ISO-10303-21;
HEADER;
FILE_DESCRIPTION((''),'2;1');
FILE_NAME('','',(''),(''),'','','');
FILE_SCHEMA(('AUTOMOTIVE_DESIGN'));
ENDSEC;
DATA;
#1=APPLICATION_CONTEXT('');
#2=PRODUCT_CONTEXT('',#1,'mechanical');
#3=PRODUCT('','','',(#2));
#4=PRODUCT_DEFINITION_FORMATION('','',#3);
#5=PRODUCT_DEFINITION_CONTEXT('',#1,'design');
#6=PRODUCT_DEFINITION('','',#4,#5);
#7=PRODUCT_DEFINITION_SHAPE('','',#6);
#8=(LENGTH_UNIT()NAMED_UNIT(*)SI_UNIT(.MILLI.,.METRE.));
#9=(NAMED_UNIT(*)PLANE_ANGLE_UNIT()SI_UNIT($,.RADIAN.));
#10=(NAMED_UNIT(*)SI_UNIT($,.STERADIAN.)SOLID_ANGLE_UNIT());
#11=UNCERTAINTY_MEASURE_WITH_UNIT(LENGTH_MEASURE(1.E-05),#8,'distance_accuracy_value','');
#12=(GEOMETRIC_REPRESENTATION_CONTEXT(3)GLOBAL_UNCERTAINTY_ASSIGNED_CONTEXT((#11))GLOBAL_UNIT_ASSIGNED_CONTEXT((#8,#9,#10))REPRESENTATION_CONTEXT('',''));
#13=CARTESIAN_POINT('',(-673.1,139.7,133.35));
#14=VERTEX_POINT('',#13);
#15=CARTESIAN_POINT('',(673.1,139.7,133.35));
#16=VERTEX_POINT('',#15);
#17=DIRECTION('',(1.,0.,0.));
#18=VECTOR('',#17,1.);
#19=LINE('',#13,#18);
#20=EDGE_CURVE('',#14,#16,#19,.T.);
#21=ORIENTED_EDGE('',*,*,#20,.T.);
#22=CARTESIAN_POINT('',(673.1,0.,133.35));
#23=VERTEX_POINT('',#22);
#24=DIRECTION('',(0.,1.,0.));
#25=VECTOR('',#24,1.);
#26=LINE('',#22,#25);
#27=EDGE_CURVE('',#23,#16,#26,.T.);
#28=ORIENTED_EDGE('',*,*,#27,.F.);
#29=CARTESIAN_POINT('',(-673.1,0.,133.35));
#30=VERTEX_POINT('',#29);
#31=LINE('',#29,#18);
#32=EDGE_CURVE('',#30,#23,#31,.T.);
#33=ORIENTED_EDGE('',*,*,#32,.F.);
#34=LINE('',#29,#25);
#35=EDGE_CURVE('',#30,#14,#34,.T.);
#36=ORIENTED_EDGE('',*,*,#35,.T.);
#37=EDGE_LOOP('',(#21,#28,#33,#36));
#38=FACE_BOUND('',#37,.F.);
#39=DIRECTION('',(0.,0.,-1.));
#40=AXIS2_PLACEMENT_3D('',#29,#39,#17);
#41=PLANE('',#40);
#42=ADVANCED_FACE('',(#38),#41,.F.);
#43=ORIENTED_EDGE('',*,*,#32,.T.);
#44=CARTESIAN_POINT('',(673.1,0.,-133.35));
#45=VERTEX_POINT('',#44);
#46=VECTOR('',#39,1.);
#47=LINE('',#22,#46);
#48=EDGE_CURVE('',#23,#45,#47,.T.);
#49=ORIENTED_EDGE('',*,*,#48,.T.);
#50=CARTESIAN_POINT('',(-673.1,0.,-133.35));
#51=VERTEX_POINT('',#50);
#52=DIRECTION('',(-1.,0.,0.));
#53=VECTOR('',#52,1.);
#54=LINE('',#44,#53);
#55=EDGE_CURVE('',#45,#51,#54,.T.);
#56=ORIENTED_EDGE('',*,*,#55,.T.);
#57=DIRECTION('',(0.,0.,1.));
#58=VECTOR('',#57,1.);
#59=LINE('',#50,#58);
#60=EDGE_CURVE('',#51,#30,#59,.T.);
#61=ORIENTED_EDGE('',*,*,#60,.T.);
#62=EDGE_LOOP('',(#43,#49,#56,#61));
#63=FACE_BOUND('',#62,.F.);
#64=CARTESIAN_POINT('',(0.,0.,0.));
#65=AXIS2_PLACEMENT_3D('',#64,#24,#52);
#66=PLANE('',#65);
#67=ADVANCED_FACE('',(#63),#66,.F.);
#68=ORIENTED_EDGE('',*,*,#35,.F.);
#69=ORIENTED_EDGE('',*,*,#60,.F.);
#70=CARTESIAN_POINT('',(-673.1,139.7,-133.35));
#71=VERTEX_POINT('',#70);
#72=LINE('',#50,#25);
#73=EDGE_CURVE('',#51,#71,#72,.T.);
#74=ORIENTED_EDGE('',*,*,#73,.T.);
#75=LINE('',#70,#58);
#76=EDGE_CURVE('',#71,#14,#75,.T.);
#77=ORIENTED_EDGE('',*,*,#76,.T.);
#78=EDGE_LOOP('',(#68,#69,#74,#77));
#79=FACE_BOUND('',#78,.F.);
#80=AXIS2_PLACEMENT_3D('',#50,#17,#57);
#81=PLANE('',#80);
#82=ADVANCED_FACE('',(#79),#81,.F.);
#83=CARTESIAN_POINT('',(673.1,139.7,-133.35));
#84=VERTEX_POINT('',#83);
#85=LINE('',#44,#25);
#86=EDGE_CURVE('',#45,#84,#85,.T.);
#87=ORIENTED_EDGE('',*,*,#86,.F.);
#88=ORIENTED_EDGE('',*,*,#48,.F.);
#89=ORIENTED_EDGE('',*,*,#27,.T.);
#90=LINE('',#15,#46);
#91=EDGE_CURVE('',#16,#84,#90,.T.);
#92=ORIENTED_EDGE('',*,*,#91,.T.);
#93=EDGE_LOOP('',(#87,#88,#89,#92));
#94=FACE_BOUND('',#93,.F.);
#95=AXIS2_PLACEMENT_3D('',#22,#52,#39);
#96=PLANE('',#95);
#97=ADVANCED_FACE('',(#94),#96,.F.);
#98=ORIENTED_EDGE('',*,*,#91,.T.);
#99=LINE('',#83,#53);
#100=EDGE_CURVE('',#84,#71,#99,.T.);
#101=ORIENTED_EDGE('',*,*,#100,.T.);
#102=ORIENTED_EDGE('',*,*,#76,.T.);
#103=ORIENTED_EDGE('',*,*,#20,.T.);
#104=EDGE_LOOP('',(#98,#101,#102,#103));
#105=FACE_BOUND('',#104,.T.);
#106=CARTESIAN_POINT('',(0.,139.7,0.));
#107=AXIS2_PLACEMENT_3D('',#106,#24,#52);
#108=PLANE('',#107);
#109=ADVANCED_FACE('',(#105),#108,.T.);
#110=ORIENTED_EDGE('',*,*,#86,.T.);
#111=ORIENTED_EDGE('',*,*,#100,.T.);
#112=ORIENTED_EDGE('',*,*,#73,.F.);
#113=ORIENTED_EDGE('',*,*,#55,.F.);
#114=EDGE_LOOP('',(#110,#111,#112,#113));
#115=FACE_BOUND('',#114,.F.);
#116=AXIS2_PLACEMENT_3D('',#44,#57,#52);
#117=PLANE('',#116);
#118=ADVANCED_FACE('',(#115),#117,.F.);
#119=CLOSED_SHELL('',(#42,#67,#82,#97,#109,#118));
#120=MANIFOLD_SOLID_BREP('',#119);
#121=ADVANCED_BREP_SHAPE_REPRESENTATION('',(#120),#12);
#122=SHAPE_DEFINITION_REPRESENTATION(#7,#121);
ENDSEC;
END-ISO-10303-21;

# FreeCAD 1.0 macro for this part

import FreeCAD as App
import Part
import Sketcher

V = App.Vector
Q = App.Units.Quantity

doc = App.newDocument("Part")
body = doc.addObject("PartDesign::Body", "Body")

# Sketch on XZ plane
sketch1 = body.newObject("Sketcher::SketchObject", "Sketch")
sketch1.AttachmentSupport = (doc.getObject("XZ_Plane"), [""])
sketch1.MapMode = "FlatFace"
sketch1.addGeometry(Part.LineSegment(V(673, 133, 0), V(673, -133, 0)), False)
sketch1.addGeometry(Part.LineSegment(V(673, -133, 0), V(-673, -133, 0)), False)
sketch1.addGeometry(Part.LineSegment(V(-673, -133, 0), V(-673, 133, 0)), False)
sketch1.addGeometry(Part.LineSegment(V(-673, 133, 0), V(673, 133, 0)), False)
sketch1.addConstraint(Sketcher.Constraint("Coincident", 0, 2, 1, 1))
sketch1.addConstraint(Sketcher.Constraint("Coincident", 1, 2, 2, 1))
sketch1.addConstraint(Sketcher.Constraint("Coincident", 2, 2, 3, 1))
sketch1.addConstraint(Sketcher.Constraint("Coincident", 3, 2, 0, 1))
sketch1.addConstraint(Sketcher.Constraint("Vertical", 0))
sketch1.addConstraint(Sketcher.Constraint("Horizontal", 1))
sketch1.addConstraint(Sketcher.Constraint("Vertical", 2))
sketch1.addConstraint(Sketcher.Constraint("Horizontal", 3))
sketch1.addConstraint(Sketcher.Constraint("Symmetric", 0, 2, 2, 2, -1, 1))
sketch1.addConstraint(Sketcher.Constraint("DistanceX", 1, 2, 1, 1, Q("53 in")))
sketch1.addConstraint(Sketcher.Constraint("DistanceY", 0, 2, 0, 1, Q("10.5 in")))
pad1 = body.newObject("PartDesign::Pad", "Pad")
pad1.Profile = sketch1
pad1.Length = Q("5.5 in")
pad1.Reversed = True

doc.recompute()
